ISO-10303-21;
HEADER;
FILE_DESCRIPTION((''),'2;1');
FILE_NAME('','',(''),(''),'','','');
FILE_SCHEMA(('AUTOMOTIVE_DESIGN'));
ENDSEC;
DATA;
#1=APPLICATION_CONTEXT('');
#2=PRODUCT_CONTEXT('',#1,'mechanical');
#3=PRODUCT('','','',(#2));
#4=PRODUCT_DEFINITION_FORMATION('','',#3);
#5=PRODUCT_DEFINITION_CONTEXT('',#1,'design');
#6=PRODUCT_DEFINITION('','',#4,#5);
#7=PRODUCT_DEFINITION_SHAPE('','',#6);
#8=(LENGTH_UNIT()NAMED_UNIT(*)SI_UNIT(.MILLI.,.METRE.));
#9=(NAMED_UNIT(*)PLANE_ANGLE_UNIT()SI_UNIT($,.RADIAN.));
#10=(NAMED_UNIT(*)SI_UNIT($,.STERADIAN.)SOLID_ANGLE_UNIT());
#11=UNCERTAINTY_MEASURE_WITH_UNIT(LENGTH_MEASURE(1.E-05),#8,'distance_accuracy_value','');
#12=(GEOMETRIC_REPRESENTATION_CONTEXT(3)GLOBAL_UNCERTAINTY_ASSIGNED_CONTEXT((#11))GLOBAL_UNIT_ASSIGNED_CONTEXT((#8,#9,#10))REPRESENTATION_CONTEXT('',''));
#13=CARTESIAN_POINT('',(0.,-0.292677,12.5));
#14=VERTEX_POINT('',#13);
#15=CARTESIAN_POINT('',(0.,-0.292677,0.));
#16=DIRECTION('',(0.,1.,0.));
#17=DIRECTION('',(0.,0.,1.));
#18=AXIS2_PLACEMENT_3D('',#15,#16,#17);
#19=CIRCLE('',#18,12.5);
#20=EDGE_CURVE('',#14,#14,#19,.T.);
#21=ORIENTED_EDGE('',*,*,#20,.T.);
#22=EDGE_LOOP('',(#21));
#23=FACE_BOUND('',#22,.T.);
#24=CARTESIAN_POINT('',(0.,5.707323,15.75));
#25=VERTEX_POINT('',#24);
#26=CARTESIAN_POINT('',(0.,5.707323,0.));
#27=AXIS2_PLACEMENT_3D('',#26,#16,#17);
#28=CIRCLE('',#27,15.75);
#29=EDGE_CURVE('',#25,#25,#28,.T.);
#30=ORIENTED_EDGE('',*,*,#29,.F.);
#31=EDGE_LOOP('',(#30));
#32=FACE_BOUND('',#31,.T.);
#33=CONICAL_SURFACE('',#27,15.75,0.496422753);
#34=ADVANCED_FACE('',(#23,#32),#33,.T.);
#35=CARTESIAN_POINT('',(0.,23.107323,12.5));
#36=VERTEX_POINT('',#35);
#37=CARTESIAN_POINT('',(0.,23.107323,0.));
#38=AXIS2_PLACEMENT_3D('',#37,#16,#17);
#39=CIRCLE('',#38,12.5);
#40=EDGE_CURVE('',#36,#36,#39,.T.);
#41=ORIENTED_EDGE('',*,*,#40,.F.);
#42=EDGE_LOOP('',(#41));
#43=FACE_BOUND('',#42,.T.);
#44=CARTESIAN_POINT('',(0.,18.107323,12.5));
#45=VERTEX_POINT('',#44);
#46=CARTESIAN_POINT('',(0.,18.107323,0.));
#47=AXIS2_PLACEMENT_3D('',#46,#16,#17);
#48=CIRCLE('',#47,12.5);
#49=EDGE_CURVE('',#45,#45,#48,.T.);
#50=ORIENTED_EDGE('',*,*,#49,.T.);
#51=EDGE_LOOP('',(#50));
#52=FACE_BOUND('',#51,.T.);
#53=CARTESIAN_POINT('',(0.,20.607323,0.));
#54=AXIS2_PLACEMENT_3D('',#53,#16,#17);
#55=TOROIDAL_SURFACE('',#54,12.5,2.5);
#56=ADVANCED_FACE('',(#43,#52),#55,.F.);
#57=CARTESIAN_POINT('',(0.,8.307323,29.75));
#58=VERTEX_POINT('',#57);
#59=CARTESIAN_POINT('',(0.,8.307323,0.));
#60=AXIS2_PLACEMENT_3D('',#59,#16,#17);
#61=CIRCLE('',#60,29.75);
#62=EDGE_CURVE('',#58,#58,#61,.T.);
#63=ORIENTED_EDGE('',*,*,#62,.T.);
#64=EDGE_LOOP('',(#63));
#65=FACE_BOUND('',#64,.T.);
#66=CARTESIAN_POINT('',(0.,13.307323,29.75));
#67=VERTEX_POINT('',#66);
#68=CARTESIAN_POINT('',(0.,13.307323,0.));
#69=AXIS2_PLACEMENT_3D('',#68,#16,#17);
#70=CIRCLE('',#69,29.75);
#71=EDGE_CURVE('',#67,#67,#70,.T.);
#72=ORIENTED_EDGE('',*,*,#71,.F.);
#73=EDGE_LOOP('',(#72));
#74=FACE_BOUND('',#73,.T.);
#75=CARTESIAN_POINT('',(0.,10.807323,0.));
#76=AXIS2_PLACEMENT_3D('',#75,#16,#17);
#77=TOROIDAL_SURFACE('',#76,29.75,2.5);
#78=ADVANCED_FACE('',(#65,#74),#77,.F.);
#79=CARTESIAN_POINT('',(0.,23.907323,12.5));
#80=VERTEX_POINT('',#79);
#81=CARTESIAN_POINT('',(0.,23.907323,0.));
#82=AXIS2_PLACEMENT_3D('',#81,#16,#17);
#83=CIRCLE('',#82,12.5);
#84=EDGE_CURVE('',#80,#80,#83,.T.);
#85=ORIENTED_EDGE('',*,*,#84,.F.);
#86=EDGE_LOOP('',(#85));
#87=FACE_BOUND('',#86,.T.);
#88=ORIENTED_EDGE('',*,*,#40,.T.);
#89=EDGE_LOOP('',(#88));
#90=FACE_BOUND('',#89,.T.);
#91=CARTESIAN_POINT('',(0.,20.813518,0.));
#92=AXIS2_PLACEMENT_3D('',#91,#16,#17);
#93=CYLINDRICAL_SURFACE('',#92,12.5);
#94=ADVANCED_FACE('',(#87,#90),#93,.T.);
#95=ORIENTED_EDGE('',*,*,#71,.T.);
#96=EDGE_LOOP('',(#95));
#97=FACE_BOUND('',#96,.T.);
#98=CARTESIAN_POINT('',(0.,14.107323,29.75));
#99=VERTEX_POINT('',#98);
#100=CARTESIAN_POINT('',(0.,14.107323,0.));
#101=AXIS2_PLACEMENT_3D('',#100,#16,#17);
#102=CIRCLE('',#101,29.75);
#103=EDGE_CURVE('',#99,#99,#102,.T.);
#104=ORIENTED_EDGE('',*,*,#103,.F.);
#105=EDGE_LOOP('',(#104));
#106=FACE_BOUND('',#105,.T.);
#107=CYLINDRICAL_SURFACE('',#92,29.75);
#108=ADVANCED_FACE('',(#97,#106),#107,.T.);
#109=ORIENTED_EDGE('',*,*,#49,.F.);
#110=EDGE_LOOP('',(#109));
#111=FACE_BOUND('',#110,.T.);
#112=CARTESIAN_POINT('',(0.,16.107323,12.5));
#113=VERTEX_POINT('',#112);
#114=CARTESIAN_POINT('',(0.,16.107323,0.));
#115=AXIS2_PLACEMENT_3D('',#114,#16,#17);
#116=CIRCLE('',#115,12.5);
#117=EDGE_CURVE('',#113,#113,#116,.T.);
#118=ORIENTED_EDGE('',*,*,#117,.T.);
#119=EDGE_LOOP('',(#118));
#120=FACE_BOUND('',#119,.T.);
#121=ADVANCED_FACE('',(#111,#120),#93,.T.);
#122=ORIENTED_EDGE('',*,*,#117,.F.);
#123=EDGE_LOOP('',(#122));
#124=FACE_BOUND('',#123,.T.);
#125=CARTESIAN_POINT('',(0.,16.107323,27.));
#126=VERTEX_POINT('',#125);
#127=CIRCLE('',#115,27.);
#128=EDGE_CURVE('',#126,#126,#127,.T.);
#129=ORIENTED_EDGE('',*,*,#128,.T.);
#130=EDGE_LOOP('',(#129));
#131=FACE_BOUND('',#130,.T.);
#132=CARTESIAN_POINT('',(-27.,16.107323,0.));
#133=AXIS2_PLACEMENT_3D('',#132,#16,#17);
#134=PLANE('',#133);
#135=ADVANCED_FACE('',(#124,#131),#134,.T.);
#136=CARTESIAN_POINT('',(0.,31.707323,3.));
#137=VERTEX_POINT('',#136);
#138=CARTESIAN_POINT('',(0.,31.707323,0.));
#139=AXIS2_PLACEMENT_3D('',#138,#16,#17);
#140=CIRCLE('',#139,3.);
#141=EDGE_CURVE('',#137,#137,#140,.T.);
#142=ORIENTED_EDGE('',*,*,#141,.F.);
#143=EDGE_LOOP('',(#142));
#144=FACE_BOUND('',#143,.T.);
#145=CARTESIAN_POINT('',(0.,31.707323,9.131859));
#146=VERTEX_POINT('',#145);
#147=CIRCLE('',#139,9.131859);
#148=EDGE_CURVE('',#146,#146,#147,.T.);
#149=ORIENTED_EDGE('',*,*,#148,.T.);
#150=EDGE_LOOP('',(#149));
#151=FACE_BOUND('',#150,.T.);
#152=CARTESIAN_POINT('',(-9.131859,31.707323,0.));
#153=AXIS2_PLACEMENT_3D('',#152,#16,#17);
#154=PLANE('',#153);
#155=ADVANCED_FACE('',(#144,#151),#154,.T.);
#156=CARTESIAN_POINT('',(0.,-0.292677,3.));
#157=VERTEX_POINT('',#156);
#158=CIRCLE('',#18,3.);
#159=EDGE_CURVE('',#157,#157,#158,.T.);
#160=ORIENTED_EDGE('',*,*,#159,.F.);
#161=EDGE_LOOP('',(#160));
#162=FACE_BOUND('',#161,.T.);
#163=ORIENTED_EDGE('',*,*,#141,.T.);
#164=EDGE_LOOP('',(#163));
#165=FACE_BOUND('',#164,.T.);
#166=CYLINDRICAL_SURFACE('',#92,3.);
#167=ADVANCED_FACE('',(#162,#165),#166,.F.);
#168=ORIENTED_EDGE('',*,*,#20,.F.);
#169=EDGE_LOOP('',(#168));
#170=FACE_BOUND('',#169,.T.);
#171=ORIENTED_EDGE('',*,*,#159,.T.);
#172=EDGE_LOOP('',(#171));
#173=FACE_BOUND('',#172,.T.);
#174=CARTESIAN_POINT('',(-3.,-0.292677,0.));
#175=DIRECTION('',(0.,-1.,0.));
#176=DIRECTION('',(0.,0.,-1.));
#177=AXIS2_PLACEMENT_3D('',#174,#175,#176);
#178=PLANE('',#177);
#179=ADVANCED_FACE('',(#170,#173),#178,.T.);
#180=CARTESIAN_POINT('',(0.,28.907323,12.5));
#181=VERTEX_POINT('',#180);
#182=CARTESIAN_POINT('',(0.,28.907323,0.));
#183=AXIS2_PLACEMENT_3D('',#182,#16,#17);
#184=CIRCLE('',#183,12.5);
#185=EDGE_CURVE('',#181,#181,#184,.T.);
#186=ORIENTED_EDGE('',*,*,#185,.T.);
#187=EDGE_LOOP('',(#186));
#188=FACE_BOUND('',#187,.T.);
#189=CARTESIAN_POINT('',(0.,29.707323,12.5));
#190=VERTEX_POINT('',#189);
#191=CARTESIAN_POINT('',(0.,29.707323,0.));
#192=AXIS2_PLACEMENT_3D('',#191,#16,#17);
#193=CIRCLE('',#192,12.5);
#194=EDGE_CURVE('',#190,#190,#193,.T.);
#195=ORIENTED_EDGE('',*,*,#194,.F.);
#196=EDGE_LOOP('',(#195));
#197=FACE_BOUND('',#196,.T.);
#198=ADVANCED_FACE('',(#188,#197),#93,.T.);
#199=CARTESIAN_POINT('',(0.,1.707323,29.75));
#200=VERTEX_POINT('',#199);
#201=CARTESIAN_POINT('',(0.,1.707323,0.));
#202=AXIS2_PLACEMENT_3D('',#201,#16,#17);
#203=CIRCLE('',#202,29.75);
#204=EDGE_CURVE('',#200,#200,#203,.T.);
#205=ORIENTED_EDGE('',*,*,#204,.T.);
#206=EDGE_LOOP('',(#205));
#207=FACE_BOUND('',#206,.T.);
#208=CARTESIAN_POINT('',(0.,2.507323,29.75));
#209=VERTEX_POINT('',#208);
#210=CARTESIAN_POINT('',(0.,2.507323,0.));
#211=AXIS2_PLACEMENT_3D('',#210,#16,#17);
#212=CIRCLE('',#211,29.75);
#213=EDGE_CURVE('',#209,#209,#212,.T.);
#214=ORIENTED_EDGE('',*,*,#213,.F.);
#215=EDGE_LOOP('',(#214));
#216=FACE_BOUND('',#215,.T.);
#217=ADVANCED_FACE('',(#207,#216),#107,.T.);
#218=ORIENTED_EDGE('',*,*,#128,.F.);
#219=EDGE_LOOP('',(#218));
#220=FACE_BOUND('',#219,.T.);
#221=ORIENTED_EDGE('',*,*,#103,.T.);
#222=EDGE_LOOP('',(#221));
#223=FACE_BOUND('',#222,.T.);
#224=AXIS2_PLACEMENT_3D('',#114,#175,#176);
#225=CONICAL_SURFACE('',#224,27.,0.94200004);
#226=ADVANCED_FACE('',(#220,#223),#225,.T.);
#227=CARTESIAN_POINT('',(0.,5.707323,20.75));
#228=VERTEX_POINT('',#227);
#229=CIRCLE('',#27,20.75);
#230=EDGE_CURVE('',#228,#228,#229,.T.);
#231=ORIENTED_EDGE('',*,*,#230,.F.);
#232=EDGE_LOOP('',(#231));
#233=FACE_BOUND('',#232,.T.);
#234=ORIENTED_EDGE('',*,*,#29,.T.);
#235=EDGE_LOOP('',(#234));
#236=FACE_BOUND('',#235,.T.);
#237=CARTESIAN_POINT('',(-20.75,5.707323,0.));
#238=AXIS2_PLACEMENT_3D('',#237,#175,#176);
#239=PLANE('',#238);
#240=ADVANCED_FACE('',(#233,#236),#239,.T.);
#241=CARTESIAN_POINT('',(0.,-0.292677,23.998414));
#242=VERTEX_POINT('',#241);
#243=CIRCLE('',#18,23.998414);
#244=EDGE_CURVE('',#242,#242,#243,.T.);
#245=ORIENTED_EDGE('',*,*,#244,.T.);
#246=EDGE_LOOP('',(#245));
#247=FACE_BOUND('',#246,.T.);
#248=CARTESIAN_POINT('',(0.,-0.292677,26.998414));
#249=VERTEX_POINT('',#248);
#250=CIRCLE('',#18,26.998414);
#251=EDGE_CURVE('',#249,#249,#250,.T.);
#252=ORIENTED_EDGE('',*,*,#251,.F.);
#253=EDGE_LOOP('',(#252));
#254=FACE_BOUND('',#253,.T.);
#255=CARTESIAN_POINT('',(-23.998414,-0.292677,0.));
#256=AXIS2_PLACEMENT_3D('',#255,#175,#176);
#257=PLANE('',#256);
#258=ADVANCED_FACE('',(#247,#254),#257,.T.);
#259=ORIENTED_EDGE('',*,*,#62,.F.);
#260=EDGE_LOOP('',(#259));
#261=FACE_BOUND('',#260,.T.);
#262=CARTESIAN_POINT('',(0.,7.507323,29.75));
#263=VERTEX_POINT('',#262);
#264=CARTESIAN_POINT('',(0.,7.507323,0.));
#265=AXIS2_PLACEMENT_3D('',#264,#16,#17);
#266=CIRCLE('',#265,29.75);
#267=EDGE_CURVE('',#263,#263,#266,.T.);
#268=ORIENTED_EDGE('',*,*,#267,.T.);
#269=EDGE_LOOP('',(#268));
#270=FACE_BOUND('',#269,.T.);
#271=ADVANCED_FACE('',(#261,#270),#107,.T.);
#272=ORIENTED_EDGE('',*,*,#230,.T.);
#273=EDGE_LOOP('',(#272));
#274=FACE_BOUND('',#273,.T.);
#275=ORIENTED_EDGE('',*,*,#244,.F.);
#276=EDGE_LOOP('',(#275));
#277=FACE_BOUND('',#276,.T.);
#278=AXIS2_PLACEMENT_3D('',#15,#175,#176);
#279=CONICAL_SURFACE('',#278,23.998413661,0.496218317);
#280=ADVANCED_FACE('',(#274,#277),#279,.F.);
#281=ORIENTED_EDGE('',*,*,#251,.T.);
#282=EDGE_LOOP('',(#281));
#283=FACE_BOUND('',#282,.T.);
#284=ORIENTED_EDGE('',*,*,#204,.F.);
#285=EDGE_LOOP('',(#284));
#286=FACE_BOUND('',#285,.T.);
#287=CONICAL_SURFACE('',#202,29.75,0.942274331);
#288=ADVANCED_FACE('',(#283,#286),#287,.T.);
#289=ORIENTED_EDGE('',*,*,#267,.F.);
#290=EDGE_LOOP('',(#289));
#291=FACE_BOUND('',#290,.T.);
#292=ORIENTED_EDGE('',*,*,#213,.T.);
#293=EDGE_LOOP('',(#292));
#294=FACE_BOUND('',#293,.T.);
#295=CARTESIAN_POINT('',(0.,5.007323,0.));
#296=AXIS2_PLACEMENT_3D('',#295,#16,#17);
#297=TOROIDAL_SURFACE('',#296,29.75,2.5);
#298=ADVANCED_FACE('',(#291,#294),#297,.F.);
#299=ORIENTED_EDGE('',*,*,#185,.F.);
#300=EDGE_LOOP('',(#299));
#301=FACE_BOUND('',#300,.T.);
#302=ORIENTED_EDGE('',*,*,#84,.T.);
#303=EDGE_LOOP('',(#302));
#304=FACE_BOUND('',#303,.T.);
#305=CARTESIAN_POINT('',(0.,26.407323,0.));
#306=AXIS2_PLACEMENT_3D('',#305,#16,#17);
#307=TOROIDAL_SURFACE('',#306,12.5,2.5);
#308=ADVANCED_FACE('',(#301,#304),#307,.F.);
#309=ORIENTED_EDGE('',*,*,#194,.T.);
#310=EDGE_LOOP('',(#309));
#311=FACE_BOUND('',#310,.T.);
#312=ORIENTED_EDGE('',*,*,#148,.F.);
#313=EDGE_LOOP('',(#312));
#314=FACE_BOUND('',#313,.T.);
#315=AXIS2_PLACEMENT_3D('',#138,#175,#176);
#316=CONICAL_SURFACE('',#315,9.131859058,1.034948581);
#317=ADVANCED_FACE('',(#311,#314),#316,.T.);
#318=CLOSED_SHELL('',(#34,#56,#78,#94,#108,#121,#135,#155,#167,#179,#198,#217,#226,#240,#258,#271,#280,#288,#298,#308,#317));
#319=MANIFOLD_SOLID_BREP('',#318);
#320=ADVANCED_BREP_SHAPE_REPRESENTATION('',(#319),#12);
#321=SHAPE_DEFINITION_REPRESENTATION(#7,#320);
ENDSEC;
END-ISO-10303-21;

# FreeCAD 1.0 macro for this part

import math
import FreeCAD as App
import Part
import Sketcher
from FreeCAD import Vector

doc = App.newDocument("Part")
body = doc.addObject("PartDesign::Body", "Body")

# Sketch on XY plane
sketch1 = body.newObject("Sketcher::SketchObject", "Sketch")
sketch1.AttachmentSupport = (doc.getObject("XY_Plane"), [""])
sketch1.MapMode = "FlatFace"
sketch1.addGeometry(Part.LineSegment(Vector(-12.5, -0.292677, 0), Vector(-3, -0.292677, 0)), False)
sketch1.addGeometry(Part.LineSegment(Vector(-3, -0.292677, 0), Vector(-3, 31.707323, 0)), False)
sketch1.addGeometry(Part.LineSegment(Vector(-3, 31.707323, 0), Vector(-9.131859, 31.707323, 0)), False)
sketch1.addGeometry(Part.LineSegment(Vector(-9.131859, 31.707323, 0), Vector(-12.5, 29.707323, 0)), False)
sketch1.addGeometry(Part.LineSegment(Vector(-12.5, 29.707323, 0), Vector(-12.5, 28.907323, 0)), False)
sketch1.addGeometry(Part.ArcOfCircle(Part.Circle(Vector(-12.5, 26.407323, 0), Vector(0, 0, 1), 2.5), math.radians(-90), math.radians(90)), False)
sketch1.addGeometry(Part.LineSegment(Vector(-12.5, 23.907323, 0), Vector(-12.5, 23.107323, 0)), False)
sketch1.addGeometry(Part.ArcOfCircle(Part.Circle(Vector(-12.5, 20.607323, 0), Vector(0, 0, 1), 2.5), math.radians(-90), math.radians(90)), False)
sketch1.addGeometry(Part.LineSegment(Vector(-12.5, 18.107323, 0), Vector(-12.5, 16.107323, 0)), False)
sketch1.addGeometry(Part.LineSegment(Vector(-12.5, 16.107323, 0), Vector(-27, 16.107323, 0)), False)
sketch1.addGeometry(Part.LineSegment(Vector(-27, 16.107323, 0), Vector(-29.75, 14.107323, 0)), False)
sketch1.addGeometry(Part.LineSegment(Vector(-29.75, 14.107323, 0), Vector(-29.75, 13.307323, 0)), False)
sketch1.addGeometry(Part.ArcOfCircle(Part.Circle(Vector(-29.75, 10.807323, 0), Vector(0, 0, 1), 2.5), math.radians(-90), math.radians(90)), False)
sketch1.addGeometry(Part.LineSegment(Vector(-29.75, 8.307323, 0), Vector(-29.75, 7.507323, 0)), False)
sketch1.addGeometry(Part.ArcOfCircle(Part.Circle(Vector(-29.75, 5.007323, 0), Vector(0, 0, 1), 2.5), math.radians(-90), math.radians(90)), False)
sketch1.addGeometry(Part.LineSegment(Vector(-29.75, 2.507323, 0), Vector(-29.75, 1.707323, 0)), False)
sketch1.addGeometry(Part.LineSegment(Vector(-29.75, 1.707323, 0), Vector(-26.998414, -0.292677, 0)), False)
sketch1.addGeometry(Part.LineSegment(Vector(-26.998414, -0.292677, 0), Vector(-23.998414, -0.292677, 0)), False)
sketch1.addGeometry(Part.LineSegment(Vector(-23.998414, -0.292677, 0), Vector(-20.75, 5.707323, 0)), False)
sketch1.addGeometry(Part.LineSegment(Vector(-20.75, 5.707323, 0), Vector(-15.75, 5.707323, 0)), False)
sketch1.addGeometry(Part.LineSegment(Vector(-15.75, 5.707323, 0), Vector(-12.5, -0.292677, 0)), False)
sketch1.addConstraint(Sketcher.Constraint("Coincident", 0, 2, 1, 1))
sketch1.addConstraint(Sketcher.Constraint("Coincident", 1, 2, 2, 1))
sketch1.addConstraint(Sketcher.Constraint("Coincident", 2, 2, 3, 1))
sketch1.addConstraint(Sketcher.Constraint("Coincident", 3, 2, 4, 1))
sketch1.addConstraint(Sketcher.Constraint("Coincident", 4, 2, 5, 2))
sketch1.addConstraint(Sketcher.Constraint("Coincident", 5, 1, 6, 1))
sketch1.addConstraint(Sketcher.Constraint("Coincident", 6, 2, 7, 2))
sketch1.addConstraint(Sketcher.Constraint("Coincident", 7, 1, 8, 1))
sketch1.addConstraint(Sketcher.Constraint("Coincident", 8, 2, 9, 1))
sketch1.addConstraint(Sketcher.Constraint("Coincident", 9, 2, 10, 1))
sketch1.addConstraint(Sketcher.Constraint("Coincident", 10, 2, 11, 1))
sketch1.addConstraint(Sketcher.Constraint("Coincident", 11, 2, 12, 2))
sketch1.addConstraint(Sketcher.Constraint("Coincident", 12, 1, 13, 1))
sketch1.addConstraint(Sketcher.Constraint("Coincident", 13, 2, 14, 2))
sketch1.addConstraint(Sketcher.Constraint("Coincident", 14, 1, 15, 1))
sketch1.addConstraint(Sketcher.Constraint("Coincident", 15, 2, 16, 1))
sketch1.addConstraint(Sketcher.Constraint("Coincident", 16, 2, 17, 1))
sketch1.addConstraint(Sketcher.Constraint("Coincident", 17, 2, 18, 1))
sketch1.addConstraint(Sketcher.Constraint("Coincident", 18, 2, 19, 1))
sketch1.addConstraint(Sketcher.Constraint("Coincident", 19, 2, 20, 1))
sketch1.addConstraint(Sketcher.Constraint("Coincident", 20, 2, 0, 1))
sketch1.addConstraint(Sketcher.Constraint("Horizontal", 0))
sketch1.addConstraint(Sketcher.Constraint("Vertical", 1))
sketch1.addConstraint(Sketcher.Constraint("Horizontal", 2))
sketch1.addConstraint(Sketcher.Constraint("Vertical", 4))
sketch1.addConstraint(Sketcher.Constraint("Vertical", 6))
sketch1.addConstraint(Sketcher.Constraint("Vertical", 8))
sketch1.addConstraint(Sketcher.Constraint("Horizontal", 9))
sketch1.addConstraint(Sketcher.Constraint("Vertical", 11))
sketch1.addConstraint(Sketcher.Constraint("Vertical", 13))
sketch1.addConstraint(Sketcher.Constraint("Vertical", 15))
sketch1.addConstraint(Sketcher.Constraint("Horizontal", 17))
sketch1.addConstraint(Sketcher.Constraint("Horizontal", 19))
sketch1.addConstraint(Sketcher.Constraint("Equal", 5, 7))
sketch1.addConstraint(Sketcher.Constraint("Equal", 7, 12))
sketch1.addConstraint(Sketcher.Constraint("Equal", 12, 14))
sketch1.addConstraint(Sketcher.Constraint("Horizontal", 0, 2, 16, 2))
sketch1.addConstraint(Sketcher.Constraint("Vertical", 5, 3, 7, 3))
sketch1.addConstraint(Sketcher.Constraint("Vertical", 12, 3, 14, 3))
sketch1.addConstraint(Sketcher.Constraint("Vertical", 7, 3, 3, 2))
sketch1.addConstraint(Sketcher.Constraint("Vertical", 4, 2, 5, 1))
sketch1.addConstraint(Sketcher.Constraint("Vertical", 6, 2, 7, 1))
sketch1.addConstraint(Sketcher.Constraint("Vertical", 14, 3, 10, 2))
sketch1.addConstraint(Sketcher.Constraint("Vertical", 11, 2, 12, 1))
sketch1.addConstraint(Sketcher.Constraint("Vertical", 13, 2, 14, 1))
sketch1.addConstraint(Sketcher.Constraint("Vertical", 8, 2, 20, 2))
sketch1.addConstraint(Sketcher.Constraint("Equal", 4, 6))
sketch1.addConstraint(Sketcher.Constraint("Equal", 6, 11))
sketch1.addConstraint(Sketcher.Constraint("Equal", 11, 13))
sketch1.addConstraint(Sketcher.Constraint("Equal", 13, 15))
sketch1.addConstraint(Sketcher.Constraint("Radius", 5, 2.5))
sketch1.addConstraint(Sketcher.Constraint("DistanceX", 17, 1, 17, 2, 3.0))
sketch1.addConstraint(Sketcher.Constraint("DistanceX", 19, 1, 19, 2, 5.0))
sketch1.addConstraint(Sketcher.Constraint("DistanceY", 1, 1, 1, 2, 32.0))
sketch1.addConstraint(Sketcher.Constraint("DistanceY", 8, 2, 8, 1, 2.0))
sketch1.addConstraint(Sketcher.Constraint("DistanceX", 0, 1, 0, 2, 9.5))
sketch1.addConstraint(Sketcher.Constraint("DistanceX", 9, 2, 9, 1, 14.5))
sketch1.addConstraint(Sketcher.Constraint("DistanceY", 4, 2, 4, 1, 0.8))
sketch1.addConstraint(Sketcher.Constraint("DistanceX", 0, 2, -1, 1, 3.0))
sketch1.addConstraint(Sketcher.Constraint("DistanceY", 3, 2, 2, 2, 2.0))
sketch1.addConstraint(Sketcher.Constraint("DistanceY", 10, 2, 9, 2, 2.0))
sketch1.addConstraint(Sketcher.Constraint("DistanceY", 17, 2, 18, 2, 6.0))
sketch1.addConstraint(Sketcher.Constraint("DistanceX", 14, 3, 18, 2, 9.0))
sketch1.addConstraint(Sketcher.Constraint("DistanceX", 12, 3, -1, 1, 29.75))
sketch1.addConstraint(Sketcher.Constraint("DistanceX", 2, 2, 2, 1, 6.131859))
sketch1.addConstraint(Sketcher.Constraint("Distance", 16, 3.401651))
sketch1.addConstraint(Sketcher.Constraint("DistanceY", -1, 1, 5, 3, 26.407323))
revolution = body.newObject("PartDesign::Revolution", "Revolution")
revolution.Profile = sketch1
revolution.ReferenceAxis = (sketch1, ["V_Axis"])
revolution.Angle = 360

doc.recompute()
